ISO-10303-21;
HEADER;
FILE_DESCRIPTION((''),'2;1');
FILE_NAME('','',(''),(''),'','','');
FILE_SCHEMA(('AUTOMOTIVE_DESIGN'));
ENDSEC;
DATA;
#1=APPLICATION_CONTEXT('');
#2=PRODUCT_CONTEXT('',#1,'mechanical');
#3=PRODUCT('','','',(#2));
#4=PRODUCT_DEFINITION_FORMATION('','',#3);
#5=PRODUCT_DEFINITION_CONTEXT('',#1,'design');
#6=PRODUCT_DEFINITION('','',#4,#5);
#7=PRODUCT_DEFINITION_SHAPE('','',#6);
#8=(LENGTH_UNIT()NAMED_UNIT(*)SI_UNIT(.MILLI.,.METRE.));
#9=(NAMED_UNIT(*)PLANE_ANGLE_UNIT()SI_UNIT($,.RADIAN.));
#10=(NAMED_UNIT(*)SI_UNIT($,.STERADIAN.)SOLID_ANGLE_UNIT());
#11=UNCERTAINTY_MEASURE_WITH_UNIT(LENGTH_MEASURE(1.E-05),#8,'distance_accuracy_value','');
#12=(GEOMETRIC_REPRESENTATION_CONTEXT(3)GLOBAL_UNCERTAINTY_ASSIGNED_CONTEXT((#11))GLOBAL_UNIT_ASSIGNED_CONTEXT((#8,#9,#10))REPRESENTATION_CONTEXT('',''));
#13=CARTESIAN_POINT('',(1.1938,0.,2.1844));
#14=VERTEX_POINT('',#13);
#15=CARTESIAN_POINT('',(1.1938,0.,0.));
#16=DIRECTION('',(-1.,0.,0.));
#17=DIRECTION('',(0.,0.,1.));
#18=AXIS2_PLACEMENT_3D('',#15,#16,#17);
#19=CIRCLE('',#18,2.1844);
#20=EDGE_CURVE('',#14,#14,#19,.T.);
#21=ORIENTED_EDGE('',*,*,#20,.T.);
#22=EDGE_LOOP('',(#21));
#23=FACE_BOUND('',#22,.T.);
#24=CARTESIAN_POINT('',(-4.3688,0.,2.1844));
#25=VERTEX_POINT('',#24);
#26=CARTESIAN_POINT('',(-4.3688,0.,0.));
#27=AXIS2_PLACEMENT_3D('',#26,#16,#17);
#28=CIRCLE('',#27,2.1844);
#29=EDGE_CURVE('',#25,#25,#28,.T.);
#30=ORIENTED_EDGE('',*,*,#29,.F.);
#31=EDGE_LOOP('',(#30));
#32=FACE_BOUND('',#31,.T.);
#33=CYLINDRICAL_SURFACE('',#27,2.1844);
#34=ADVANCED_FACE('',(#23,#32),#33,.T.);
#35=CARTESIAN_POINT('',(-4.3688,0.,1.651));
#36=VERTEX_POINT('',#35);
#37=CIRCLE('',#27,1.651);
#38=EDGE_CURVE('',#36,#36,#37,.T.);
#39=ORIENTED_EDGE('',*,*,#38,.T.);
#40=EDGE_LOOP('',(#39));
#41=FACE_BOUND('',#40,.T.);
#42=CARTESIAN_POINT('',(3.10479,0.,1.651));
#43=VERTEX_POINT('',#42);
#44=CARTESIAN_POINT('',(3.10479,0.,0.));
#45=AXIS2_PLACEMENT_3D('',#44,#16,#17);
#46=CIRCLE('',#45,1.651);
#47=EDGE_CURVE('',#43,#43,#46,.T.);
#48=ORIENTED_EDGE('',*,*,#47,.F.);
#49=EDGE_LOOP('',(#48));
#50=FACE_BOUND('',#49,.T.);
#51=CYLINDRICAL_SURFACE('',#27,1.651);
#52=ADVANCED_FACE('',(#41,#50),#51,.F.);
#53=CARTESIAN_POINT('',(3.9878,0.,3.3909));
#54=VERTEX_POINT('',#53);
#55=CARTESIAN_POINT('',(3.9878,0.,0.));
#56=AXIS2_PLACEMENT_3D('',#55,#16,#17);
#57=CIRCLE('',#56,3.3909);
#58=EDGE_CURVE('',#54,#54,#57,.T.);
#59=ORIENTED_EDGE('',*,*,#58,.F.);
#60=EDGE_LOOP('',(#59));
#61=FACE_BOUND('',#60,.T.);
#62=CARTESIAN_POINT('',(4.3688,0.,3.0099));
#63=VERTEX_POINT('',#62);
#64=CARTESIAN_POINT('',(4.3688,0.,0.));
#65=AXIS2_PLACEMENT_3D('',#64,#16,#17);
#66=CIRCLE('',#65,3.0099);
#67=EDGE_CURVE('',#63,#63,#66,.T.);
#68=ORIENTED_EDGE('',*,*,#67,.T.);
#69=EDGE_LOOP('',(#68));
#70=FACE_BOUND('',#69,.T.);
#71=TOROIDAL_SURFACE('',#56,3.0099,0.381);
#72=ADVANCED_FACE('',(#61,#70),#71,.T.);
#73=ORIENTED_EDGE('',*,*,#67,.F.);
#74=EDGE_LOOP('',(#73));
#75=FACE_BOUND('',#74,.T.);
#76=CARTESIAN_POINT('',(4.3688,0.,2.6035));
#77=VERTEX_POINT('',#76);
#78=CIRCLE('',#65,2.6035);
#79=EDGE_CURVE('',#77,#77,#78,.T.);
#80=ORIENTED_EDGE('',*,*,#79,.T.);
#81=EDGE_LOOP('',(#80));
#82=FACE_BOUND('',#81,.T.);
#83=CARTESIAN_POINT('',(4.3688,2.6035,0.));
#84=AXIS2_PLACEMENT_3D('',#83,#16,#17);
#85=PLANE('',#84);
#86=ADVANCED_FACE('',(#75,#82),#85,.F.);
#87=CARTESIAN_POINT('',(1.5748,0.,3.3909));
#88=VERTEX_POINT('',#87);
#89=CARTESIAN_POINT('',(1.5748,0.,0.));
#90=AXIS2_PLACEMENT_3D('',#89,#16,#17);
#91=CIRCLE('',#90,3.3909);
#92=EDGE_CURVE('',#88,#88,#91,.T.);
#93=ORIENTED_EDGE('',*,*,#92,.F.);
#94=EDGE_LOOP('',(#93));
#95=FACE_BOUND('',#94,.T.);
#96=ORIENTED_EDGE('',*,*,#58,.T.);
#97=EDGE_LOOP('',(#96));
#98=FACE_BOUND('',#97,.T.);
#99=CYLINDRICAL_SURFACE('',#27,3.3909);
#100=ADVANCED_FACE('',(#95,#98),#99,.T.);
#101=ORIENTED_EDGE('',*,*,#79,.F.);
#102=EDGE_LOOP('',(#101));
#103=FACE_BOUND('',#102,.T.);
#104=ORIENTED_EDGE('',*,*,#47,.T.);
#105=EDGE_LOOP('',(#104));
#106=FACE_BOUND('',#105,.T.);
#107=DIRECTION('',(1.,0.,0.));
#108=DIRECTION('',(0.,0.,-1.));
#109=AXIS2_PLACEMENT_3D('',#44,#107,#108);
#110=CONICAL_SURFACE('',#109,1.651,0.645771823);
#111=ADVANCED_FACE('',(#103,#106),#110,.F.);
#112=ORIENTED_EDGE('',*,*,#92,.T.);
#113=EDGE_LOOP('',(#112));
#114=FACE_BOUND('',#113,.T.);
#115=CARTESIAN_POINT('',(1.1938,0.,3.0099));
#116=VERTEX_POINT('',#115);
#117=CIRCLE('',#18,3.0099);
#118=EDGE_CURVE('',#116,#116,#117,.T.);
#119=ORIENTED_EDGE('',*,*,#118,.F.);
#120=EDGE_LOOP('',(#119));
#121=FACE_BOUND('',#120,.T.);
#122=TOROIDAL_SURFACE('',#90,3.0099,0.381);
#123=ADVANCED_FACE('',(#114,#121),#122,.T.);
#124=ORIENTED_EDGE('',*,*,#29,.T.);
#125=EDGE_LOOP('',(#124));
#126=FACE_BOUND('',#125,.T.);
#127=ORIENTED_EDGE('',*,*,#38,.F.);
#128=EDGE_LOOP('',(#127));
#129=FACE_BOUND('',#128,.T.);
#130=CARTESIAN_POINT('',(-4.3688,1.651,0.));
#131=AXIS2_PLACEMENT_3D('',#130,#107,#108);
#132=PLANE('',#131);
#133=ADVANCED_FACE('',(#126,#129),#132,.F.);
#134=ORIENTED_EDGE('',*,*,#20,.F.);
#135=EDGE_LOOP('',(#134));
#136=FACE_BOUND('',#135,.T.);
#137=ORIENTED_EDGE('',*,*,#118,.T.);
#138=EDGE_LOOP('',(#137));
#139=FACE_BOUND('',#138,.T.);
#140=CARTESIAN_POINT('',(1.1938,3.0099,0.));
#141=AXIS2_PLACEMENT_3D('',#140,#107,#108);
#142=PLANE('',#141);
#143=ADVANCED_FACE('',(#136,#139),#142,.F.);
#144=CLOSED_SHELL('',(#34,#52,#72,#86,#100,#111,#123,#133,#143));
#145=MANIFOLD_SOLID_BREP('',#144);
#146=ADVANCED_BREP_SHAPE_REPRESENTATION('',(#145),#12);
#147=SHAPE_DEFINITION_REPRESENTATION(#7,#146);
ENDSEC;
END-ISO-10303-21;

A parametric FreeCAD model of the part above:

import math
import FreeCAD as App
import Part
import Sketcher
from FreeCAD import Vector
Q = App.Units.Quantity

doc = App.newDocument("Part")
body = doc.addObject("PartDesign::Body", "Body")

# Sketch on XY plane
sketch1 = doc.addObject("Sketcher::SketchObject", "Sketch")
body.addObject(sketch1)
sketch1.AttachmentSupport = (doc.XY_Plane, [""])
sketch1.MapMode = "FlatFace"
sketch1.addGeometry(Part.LineSegment(Vector(-4.37, 1.65, 0), Vector(3.1, 1.65, 0)), False)
sketch1.addGeometry(Part.LineSegment(Vector(3.1, 1.65, 0), Vector(4.37, 2.6, 0)), False)
sketch1.addGeometry(Part.LineSegment(Vector(4.37, 2.6, 0), Vector(4.37, 3.01, 0)), False)
sketch1.addGeometry(Part.ArcOfCircle(Part.Circle(Vector(3.99, 3.01, 0), Vector(0, 0, 1), 0.38), math.radians(0), math.radians(90)), False)
sketch1.addGeometry(Part.LineSegment(Vector(3.99, 3.39, 0), Vector(1.57, 3.39, 0)), False)
sketch1.addGeometry(Part.ArcOfCircle(Part.Circle(Vector(1.57, 3.01, 0), Vector(0, 0, 1), 0.38), math.radians(90), math.radians(180)), False)
sketch1.addGeometry(Part.LineSegment(Vector(1.19, 3.01, 0), Vector(1.19, 2.18, 0)), False)
sketch1.addGeometry(Part.LineSegment(Vector(1.19, 2.18, 0), Vector(-4.37, 2.18, 0)), False)
sketch1.addGeometry(Part.LineSegment(Vector(-4.37, 2.18, 0), Vector(-4.37, 1.65, 0)), False)
sketch1.addConstraint(Sketcher.Constraint("Coincident", 0, 2, 1, 1))
sketch1.addConstraint(Sketcher.Constraint("Coincident", 1, 2, 2, 1))
sketch1.addConstraint(Sketcher.Constraint("Tangent", 2, 2, 3, 1))
sketch1.addConstraint(Sketcher.Constraint("Tangent", 3, 2, 4, 1))
sketch1.addConstraint(Sketcher.Constraint("Tangent", 4, 2, 5, 1))
sketch1.addConstraint(Sketcher.Constraint("Tangent", 5, 2, 6, 1))
sketch1.addConstraint(Sketcher.Constraint("Coincident", 6, 2, 7, 1))
sketch1.addConstraint(Sketcher.Constraint("Coincident", 7, 2, 8, 1))
sketch1.addConstraint(Sketcher.Constraint("Coincident", 8, 2, 0, 1))
sketch1.addConstraint(Sketcher.Constraint("Horizontal", 0))
sketch1.addConstraint(Sketcher.Constraint("Vertical", 2))
sketch1.addConstraint(Sketcher.Constraint("Horizontal", 4))
sketch1.addConstraint(Sketcher.Constraint("Vertical", 6))
sketch1.addConstraint(Sketcher.Constraint("Horizontal", 7))
sketch1.addConstraint(Sketcher.Constraint("Vertical", 8))
sketch1.addConstraint(Sketcher.Constraint("Equal", 3, 5))
sketch1.addConstraint(Sketcher.Constraint("Angle", 1, Q("37 deg")))
sketch1.addConstraint(Sketcher.Constraint("Radius", 3, Q("0.015 in")))
sketch1.addConstraint(Sketcher.Constraint("DistanceX", 4, 2, 4, 1, Q("0.095 in")))
sketch1.addConstraint(Sketcher.Constraint("DistanceX", 7, 2, 7, 1, Q("0.219 in")))
sketch1.addConstraint(Sketcher.Constraint("DistanceY", 2, 1, 2, 2, Q("0.016 in")))
sketch1.addConstraint(Sketcher.Constraint("DistanceY", 8, 2, 8, 1, Q("0.021 in")))
sketch1.addConstraint(Sketcher.Constraint("DistanceY", 6, 2, 6, 1, Q("0.0325 in")))
sketch1.addConstraint(Sketcher.Constraint("DistanceX", -1, 1, 3, 3, Q("0.157 in")))
sketch1.addConstraint(Sketcher.Constraint("DistanceY", -1, 1, 0, 2, Q("0.065 in")))
revolution = doc.addObject("PartDesign::Revolution", "Revolution")
body.addObject(revolution)
revolution.Profile = sketch1
revolution.ReferenceAxis = (sketch1, ["H_Axis"])
revolution.Angle = 360

doc.recompute()
